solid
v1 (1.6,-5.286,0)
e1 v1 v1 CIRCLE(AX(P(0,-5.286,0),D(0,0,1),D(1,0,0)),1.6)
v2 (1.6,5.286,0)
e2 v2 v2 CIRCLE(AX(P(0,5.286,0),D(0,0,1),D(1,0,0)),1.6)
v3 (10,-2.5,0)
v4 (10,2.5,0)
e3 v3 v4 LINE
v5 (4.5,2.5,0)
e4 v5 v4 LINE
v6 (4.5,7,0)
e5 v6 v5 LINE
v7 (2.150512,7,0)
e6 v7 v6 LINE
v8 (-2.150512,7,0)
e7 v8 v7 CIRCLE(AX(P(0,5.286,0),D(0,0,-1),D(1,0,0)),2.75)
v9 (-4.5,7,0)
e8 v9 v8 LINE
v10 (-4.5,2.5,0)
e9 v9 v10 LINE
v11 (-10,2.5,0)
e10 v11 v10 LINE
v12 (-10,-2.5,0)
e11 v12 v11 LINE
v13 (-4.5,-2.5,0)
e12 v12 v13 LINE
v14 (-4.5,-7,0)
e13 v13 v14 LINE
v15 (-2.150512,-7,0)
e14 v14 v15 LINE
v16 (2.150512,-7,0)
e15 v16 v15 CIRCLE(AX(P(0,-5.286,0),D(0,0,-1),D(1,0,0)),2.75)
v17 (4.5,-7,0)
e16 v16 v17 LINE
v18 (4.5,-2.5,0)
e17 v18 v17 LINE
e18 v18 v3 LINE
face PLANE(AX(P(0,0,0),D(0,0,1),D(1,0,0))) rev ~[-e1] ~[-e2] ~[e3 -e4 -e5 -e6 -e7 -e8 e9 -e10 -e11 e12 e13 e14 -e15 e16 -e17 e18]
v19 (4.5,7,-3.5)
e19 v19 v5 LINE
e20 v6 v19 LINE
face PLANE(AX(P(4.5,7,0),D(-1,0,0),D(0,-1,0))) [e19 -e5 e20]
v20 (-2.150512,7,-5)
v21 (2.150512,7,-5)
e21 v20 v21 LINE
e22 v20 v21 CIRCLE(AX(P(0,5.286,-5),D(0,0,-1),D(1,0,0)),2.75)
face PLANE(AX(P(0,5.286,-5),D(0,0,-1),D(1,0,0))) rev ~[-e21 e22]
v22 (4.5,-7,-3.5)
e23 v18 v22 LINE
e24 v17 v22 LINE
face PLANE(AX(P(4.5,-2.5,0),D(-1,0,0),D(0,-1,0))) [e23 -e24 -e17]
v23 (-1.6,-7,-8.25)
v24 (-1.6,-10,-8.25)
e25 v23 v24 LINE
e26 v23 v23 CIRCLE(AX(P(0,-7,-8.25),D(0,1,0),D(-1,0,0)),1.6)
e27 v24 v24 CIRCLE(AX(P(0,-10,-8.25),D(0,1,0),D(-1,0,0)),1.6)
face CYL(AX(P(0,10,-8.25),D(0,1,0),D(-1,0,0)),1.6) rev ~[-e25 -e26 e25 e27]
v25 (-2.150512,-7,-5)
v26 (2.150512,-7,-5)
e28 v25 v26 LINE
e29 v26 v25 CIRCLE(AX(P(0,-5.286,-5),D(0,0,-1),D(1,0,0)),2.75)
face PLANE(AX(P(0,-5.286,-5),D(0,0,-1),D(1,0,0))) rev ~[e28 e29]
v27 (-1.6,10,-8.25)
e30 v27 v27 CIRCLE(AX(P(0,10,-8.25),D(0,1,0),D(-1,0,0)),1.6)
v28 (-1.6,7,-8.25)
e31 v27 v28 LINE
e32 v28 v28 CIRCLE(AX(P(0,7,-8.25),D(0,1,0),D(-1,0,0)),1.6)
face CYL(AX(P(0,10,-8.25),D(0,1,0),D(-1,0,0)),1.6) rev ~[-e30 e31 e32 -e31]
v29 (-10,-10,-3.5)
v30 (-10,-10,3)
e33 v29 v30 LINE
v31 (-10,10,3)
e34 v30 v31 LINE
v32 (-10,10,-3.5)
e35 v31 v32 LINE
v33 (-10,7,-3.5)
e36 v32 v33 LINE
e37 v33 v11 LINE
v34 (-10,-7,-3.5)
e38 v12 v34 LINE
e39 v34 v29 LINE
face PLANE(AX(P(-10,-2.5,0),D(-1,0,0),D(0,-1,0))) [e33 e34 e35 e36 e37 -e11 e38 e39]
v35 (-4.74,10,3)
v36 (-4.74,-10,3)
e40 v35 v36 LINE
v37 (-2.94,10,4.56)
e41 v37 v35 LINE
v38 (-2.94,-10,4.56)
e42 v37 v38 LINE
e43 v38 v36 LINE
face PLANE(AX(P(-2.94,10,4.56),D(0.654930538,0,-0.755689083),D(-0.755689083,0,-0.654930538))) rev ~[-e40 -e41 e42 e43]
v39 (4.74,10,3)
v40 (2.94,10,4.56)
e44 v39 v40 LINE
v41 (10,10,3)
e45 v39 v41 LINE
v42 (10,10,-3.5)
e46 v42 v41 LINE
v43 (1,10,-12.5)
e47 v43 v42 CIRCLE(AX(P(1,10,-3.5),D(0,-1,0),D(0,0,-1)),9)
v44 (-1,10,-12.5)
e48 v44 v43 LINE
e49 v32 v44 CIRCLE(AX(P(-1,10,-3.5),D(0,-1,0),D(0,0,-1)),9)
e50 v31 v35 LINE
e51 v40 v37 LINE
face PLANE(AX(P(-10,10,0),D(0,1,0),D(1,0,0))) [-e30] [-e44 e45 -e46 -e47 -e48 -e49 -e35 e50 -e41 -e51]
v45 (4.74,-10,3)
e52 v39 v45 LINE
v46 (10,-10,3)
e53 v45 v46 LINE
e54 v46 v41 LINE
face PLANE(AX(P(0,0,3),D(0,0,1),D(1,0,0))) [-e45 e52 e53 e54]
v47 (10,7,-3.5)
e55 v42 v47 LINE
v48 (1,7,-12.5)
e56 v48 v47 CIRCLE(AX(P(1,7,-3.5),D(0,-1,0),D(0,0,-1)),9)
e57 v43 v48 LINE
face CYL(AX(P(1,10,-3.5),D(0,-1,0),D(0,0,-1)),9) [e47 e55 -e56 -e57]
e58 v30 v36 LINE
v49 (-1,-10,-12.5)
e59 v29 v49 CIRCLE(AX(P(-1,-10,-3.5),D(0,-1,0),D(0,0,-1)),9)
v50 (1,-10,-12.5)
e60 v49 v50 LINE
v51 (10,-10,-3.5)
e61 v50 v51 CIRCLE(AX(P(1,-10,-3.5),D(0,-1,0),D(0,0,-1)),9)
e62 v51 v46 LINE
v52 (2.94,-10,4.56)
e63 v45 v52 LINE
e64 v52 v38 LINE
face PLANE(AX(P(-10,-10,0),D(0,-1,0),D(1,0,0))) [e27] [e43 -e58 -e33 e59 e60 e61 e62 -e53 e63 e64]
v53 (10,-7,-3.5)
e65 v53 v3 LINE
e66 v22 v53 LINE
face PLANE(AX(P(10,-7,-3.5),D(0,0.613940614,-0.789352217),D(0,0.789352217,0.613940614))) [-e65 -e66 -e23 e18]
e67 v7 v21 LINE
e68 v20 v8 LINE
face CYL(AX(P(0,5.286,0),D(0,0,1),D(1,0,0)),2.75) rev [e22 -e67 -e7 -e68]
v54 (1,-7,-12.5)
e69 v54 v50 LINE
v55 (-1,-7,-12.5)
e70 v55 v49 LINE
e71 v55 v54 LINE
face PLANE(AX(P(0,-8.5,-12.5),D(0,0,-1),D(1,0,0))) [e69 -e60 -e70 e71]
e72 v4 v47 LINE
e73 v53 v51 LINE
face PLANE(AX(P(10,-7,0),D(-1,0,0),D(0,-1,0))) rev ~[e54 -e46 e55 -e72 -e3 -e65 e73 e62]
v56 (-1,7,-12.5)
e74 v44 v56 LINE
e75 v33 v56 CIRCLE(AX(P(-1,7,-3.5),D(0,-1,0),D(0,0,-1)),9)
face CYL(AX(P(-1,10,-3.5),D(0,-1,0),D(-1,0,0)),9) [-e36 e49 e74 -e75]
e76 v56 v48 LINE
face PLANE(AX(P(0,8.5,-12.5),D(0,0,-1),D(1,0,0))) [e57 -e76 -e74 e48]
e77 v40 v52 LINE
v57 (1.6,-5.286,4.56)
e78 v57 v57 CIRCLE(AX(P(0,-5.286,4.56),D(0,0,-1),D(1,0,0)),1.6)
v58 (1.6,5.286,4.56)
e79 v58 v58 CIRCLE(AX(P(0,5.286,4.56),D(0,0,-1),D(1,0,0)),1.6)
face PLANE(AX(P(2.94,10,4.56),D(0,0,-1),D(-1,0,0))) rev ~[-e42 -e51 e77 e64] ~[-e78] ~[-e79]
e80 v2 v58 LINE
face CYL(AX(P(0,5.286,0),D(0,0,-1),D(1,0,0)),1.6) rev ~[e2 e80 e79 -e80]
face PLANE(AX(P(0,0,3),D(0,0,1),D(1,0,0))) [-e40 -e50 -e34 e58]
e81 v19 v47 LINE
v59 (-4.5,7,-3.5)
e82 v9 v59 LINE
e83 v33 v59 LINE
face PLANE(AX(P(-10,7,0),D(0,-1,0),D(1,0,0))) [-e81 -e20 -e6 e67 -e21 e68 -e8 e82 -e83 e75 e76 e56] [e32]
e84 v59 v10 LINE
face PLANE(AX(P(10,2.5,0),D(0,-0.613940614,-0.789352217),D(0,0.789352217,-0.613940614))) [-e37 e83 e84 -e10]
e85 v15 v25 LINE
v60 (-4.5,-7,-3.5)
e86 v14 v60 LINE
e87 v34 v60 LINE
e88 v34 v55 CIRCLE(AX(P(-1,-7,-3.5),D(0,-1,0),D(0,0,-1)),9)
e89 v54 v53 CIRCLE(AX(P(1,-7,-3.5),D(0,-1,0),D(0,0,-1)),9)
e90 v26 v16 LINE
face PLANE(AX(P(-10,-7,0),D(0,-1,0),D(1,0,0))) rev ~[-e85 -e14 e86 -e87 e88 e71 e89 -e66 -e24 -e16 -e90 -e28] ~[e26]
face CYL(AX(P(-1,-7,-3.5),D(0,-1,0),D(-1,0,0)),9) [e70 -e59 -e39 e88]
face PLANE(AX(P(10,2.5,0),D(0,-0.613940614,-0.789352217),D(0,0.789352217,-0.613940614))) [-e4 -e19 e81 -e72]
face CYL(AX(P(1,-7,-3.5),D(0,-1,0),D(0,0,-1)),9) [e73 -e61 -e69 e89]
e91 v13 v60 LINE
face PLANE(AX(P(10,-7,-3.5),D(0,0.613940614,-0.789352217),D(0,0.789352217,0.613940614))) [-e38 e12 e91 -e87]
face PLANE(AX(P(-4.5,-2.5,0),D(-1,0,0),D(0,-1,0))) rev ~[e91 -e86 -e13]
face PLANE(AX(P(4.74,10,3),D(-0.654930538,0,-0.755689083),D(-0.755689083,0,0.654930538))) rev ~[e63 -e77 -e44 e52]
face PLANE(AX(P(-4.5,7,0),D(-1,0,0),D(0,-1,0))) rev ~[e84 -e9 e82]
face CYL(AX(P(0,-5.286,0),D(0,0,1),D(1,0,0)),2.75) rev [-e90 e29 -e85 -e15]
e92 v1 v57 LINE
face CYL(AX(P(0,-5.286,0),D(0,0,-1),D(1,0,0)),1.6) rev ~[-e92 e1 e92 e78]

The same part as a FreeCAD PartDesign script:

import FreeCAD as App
import Part
import Sketcher

V = App.Vector


def edges_at(feature, points):
    """Names of the edges that pass closest to the given points."""
    edges = feature.Shape.Edges
    near = lambda p: min(range(len(edges)), key=lambda i: edges[i].distToShape(Part.Vertex(*p))[0])
    return sorted({f"Edge{near(p) + 1}" for p in points})

doc = App.newDocument("Part")
body = doc.addObject("PartDesign::Body", "Body")

# Sketch on XY plane
sketch1 = body.newObject("Sketcher::SketchObject", "Sketch")
sketch1.AttachmentSupport = (doc.getObject("XY_Plane"), [""])
sketch1.MapMode = "FlatFace"
sketch1.addGeometry([
    Part.LineSegment(V(-10, 10, 0), V(-10, -10, 0)),  # 0
    Part.LineSegment(V(-10, -10, 0), V(10, -10, 0)),  # 1
    Part.LineSegment(V(10, -10, 0), V(10, 10, 0)),  # 2
    Part.LineSegment(V(10, 10, 0), V(-10, 10, 0)),  # 3
    Part.Circle(V(0, -5.286, 0), V(0, 0, 1), 1.6),  # 4
    Part.Circle(V(0, 5.286, 0), V(0, 0, 1), 1.6),  # 5
], False)
sketch1.addConstraint([
    Sketcher.Constraint("Coincident", 0, 2, 1, 1),
    Sketcher.Constraint("Coincident", 1, 2, 2, 1),
    Sketcher.Constraint("Coincident", 2, 2, 3, 1),
    Sketcher.Constraint("Coincident", 3, 2, 0, 1),
    Sketcher.Constraint("Vertical", 0),
    Sketcher.Constraint("Horizontal", 1),
    Sketcher.Constraint("Vertical", 2),
    Sketcher.Constraint("Horizontal", 3),
    Sketcher.Constraint("Equal", 4, 5),
    Sketcher.Constraint("Symmetric", 4, 3, 5, 3, -1, 1),
    Sketcher.Constraint("Symmetric", 0, 2, 2, 2, -1, 1),
    Sketcher.Constraint("PointOnObject", 4, 3, -2),
    Sketcher.Constraint("Equal", 3, 0),
    Sketcher.Constraint("Diameter", 4, 3.2),
    Sketcher.Constraint("DistanceX", 1, 1, 1, 2, 20.0),
    Sketcher.Constraint("DistanceY", 4, 3, -1, 1, 5.286),
])
pad1 = body.newObject("PartDesign::Pad", "Pad")
pad1.Profile = sketch1
pad1.Length = 3

# Sketch on XZ plane
sketch2 = body.newObject("Sketcher::SketchObject", "Sketch001")
sketch2.AttachmentSupport = (doc.getObject("XZ_Plane"), [""])
sketch2.MapMode = "FlatFace"
sketch2.AttachmentOffset = App.Placement(V(0, 0, -10), App.Rotation())
sketch2.addGeometry([
    Part.LineSegment(V(4.74, 3, 0), V(-4.74, 3, 0)),
    Part.LineSegment(V(-4.74, 3, 0), V(-2.94, 4.56, 0)),
    Part.LineSegment(V(-2.94, 4.56, 0), V(2.94, 4.56, 0)),
    Part.LineSegment(V(2.94, 4.56, 0), V(4.74, 3, 0)),
], False)
sketch2.addConstraint([
    Sketcher.Constraint("Coincident", 0, 2, 1, 1),
    Sketcher.Constraint("Coincident", 1, 2, 2, 1),
    Sketcher.Constraint("Coincident", 2, 2, 3, 1),
    Sketcher.Constraint("Coincident", 3, 2, 0, 1),
    Sketcher.Constraint("Horizontal", 0),
    Sketcher.Constraint("Horizontal", 2),
    Sketcher.Constraint("Equal", 1, 3),
    Sketcher.Constraint("DistanceY", -1, 1, 0, 2, 3.0),
    Sketcher.Constraint("DistanceX", 0, 2, 0, 1, 9.48),
    Sketcher.Constraint("DistanceX", 2, 1, 2, 2, 5.88),
    Sketcher.Constraint("DistanceX", 0, 2, -1, 1, 4.74),
    Sketcher.Constraint("DistanceY", -1, 1, 1, 2, 4.56),
])
pad2 = body.newObject("PartDesign::Pad", "Pad001")
pad2.Profile = sketch2
pad2.Length = 20

# Sketch on XY plane
sketch3 = body.newObject("Sketcher::SketchObject", "Sketch002")
sketch3.AttachmentSupport = (doc.getObject("XY_Plane"), [""])
sketch3.MapMode = "FlatFace"
sketch3.addGeometry([
    Part.Circle(V(0, -5.286, 0), V(0, 0, 1), 1.6),
    Part.Circle(V(0, 5.286, 0), V(0, 0, 1), 1.6),
], False)
sketch3.addConstraint([
    Sketcher.Constraint("Equal", 0, 1),
    Sketcher.Constraint("Symmetric", 0, 3, 1, 3, -1, 1),
    Sketcher.Constraint("PointOnObject", 0, 3, -2),
    Sketcher.Constraint("Diameter", 0, 3.2),
    Sketcher.Constraint("DistanceY", 0, 3, -1, 1, 5.286),
])
pocket1 = body.newObject("PartDesign::Pocket", "Pocket")
pocket1.Profile = sketch3
pocket1.Type = "ThroughAll"
pocket1.Reversed = True

# Sketch on XY plane
sketch4 = body.newObject("Sketcher::SketchObject", "Sketch003")
sketch4.AttachmentSupport = (doc.getObject("XY_Plane"), [""])
sketch4.MapMode = "FlatFace"
sketch4.addGeometry([
    Part.LineSegment(V(-10, -10, 0), V(-10, -7, 0)),  # 0
    Part.LineSegment(V(-10, -7, 0), V(10, -7, 0)),  # 1
    Part.LineSegment(V(10, -7, 0), V(10, -10, 0)),  # 2
    Part.LineSegment(V(10, -10, 0), V(-10, -10, 0)),  # 3
    Part.LineSegment(V(-10, 7, 0), V(-10, 10, 0)),  # 4
    Part.LineSegment(V(-10, 10, 0), V(10, 10, 0)),  # 5
    Part.LineSegment(V(10, 10, 0), V(10, 7, 0)),  # 6
    Part.LineSegment(V(10, 7, 0), V(-10, 7, 0)),  # 7
], False)
sketch4.addConstraint([
    Sketcher.Constraint("Coincident", 0, 2, 1, 1),
    Sketcher.Constraint("Coincident", 1, 2, 2, 1),
    Sketcher.Constraint("Coincident", 2, 2, 3, 1),
    Sketcher.Constraint("Coincident", 3, 2, 0, 1),
    Sketcher.Constraint("Coincident", 4, 2, 5, 1),
    Sketcher.Constraint("Coincident", 5, 2, 6, 1),
    Sketcher.Constraint("Coincident", 6, 2, 7, 1),
    Sketcher.Constraint("Coincident", 7, 2, 4, 1),
    Sketcher.Constraint("Vertical", 0),
    Sketcher.Constraint("Horizontal", 1),
    Sketcher.Constraint("Vertical", 2),
    Sketcher.Constraint("Horizontal", 3),
    Sketcher.Constraint("Vertical", 4),
    Sketcher.Constraint("Horizontal", 5),
    Sketcher.Constraint("Vertical", 6),
    Sketcher.Constraint("Horizontal", 7),
    Sketcher.Constraint("Symmetric", 2, 2, 4, 2, -1, 1),
    Sketcher.Constraint("Symmetric", 0, 2, 6, 2, -1, 1),
    Sketcher.Constraint("Vertical", 3, 2, 4, 2),
    Sketcher.Constraint("DistanceX", 1, 1, 1, 2, 20.0),
    Sketcher.Constraint("DistanceY", 0, 1, 0, 2, 3.0),
    Sketcher.Constraint("DistanceY", 0, 2, -1, 1, 7.0),
])
pad3 = body.newObject("PartDesign::Pad", "Pad002")
pad3.Profile = sketch4
pad3.Length = 12.5
pad3.Reversed = True

# Sketch on XY plane
sketch5 = body.newObject("Sketcher::SketchObject", "Sketch004")
sketch5.AttachmentSupport = (doc.getObject("XY_Plane"), [""])
sketch5.MapMode = "FlatFace"
sketch5.addGeometry([
    Part.Circle(V(0, -5.286, 0), V(0, 0, 1), 2.75),
    Part.Circle(V(0, 5.286, 0), V(0, 0, 1), 2.75),
], False)
sketch5.addConstraint([
    Sketcher.Constraint("Equal", 0, 1),
    Sketcher.Constraint("Symmetric", 0, 3, 1, 3, -1, 1),
    Sketcher.Constraint("PointOnObject", 0, 3, -2),
    Sketcher.Constraint("Diameter", 0, 5.5),
    Sketcher.Constraint("DistanceY", 0, 3, -1, 1, 5.286),
])
pocket2 = body.newObject("PartDesign::Pocket", "Pocket001")
pocket2.Profile = sketch5
pocket2.Length = 5

# Sketch on XZ plane
sketch6 = body.newObject("Sketcher::SketchObject", "Sketch005")
sketch6.AttachmentSupport = (doc.getObject("XZ_Plane"), [""])
sketch6.MapMode = "FlatFace"
sketch6.AttachmentOffset = App.Placement(V(0, 0, -10), App.Rotation())
sketch6.addGeometry(Part.Circle(V(0, -8.25, 0), V(0, 0, 1), 1.6), False)
sketch6.addConstraint([
    Sketcher.Constraint("PointOnObject", 0, 3, -2),
    Sketcher.Constraint("Diameter", 0, 3.2),
    Sketcher.Constraint("DistanceY", 0, 3, -1, 1, 8.25),
])
pocket3 = body.newObject("PartDesign::Pocket", "Pocket002")
pocket3.Profile = sketch6
pocket3.Type = "ThroughAll"
pocket3.Reversed = True
doc.recompute()

fillet = body.newObject("PartDesign::Fillet", "Fillet")
fillet.Base = (pocket3, edges_at(pocket3, [
    (10, 8.5, -12.5),
    (-10, 8.5, -12.5),
    (10, -8.5, -12.5),
    (-10, -8.5, -12.5),
]))
fillet.Radius = 9

# Sketch on XY plane
sketch7 = body.newObject("Sketcher::SketchObject", "Sketch006")
sketch7.AttachmentSupport = (doc.getObject("XY_Plane"), [""])
sketch7.MapMode = "FlatFace"
sketch7.addGeometry([
    Part.LineSegment(V(-10, -7, 0), V(-10, -2.5, 0)),  # 0
    Part.LineSegment(V(-10, -2.5, 0), V(-4.5, -2.5, 0)),  # 1
    Part.LineSegment(V(-4.5, -2.5, 0), V(-4.5, -7, 0)),  # 2
    Part.LineSegment(V(-4.5, -7, 0), V(-10, -7, 0)),  # 3
    Part.LineSegment(V(-10, 2.5, 0), V(-10, 7, 0)),  # 4
    Part.LineSegment(V(-10, 7, 0), V(-4.5, 7, 0)),  # 5
    Part.LineSegment(V(-4.5, 7, 0), V(-4.5, 2.5, 0)),  # 6
    Part.LineSegment(V(-4.5, 2.5, 0), V(-10, 2.5, 0)),  # 7
    Part.LineSegment(V(4.5, -7, 0), V(4.5, -2.5, 0)),  # 8
    Part.LineSegment(V(4.5, -2.5, 0), V(10, -2.5, 0)),  # 9
    Part.LineSegment(V(10, -2.5, 0), V(10, -7, 0)),  # 10
    Part.LineSegment(V(10, -7, 0), V(4.5, -7, 0)),  # 11
    Part.LineSegment(V(4.5, 2.5, 0), V(4.5, 7, 0)),  # 12
    Part.LineSegment(V(4.5, 7, 0), V(10, 7, 0)),  # 13
    Part.LineSegment(V(10, 7, 0), V(10, 2.5, 0)),  # 14
    Part.LineSegment(V(10, 2.5, 0), V(4.5, 2.5, 0)),  # 15
], False)
sketch7.addConstraint([
    Sketcher.Constraint("Coincident", 0, 2, 1, 1),
    Sketcher.Constraint("Coincident", 1, 2, 2, 1),
    Sketcher.Constraint("Coincident", 2, 2, 3, 1),
    Sketcher.Constraint("Coincident", 3, 2, 0, 1),
    Sketcher.Constraint("Coincident", 4, 2, 5, 1),
    Sketcher.Constraint("Coincident", 5, 2, 6, 1),
    Sketcher.Constraint("Coincident", 6, 2, 7, 1),
    Sketcher.Constraint("Coincident", 7, 2, 4, 1),
    Sketcher.Constraint("Coincident", 8, 2, 9, 1),
    Sketcher.Constraint("Coincident", 9, 2, 10, 1),
    Sketcher.Constraint("Coincident", 10, 2, 11, 1),
    Sketcher.Constraint("Coincident", 11, 2, 8, 1),
    Sketcher.Constraint("Coincident", 12, 2, 13, 1),
    Sketcher.Constraint("Coincident", 13, 2, 14, 1),
    Sketcher.Constraint("Coincident", 14, 2, 15, 1),
    Sketcher.Constraint("Coincident", 15, 2, 12, 1),
    Sketcher.Constraint("Vertical", 0),
    Sketcher.Constraint("Horizontal", 1),
    Sketcher.Constraint("Vertical", 2),
    Sketcher.Constraint("Horizontal", 3),
    Sketcher.Constraint("Vertical", 4),
    Sketcher.Constraint("Horizontal", 5),
    Sketcher.Constraint("Vertical", 6),
    Sketcher.Constraint("Horizontal", 7),
    Sketcher.Constraint("Vertical", 8),
    Sketcher.Constraint("Horizontal", 9),
    Sketcher.Constraint("Vertical", 10),
    Sketcher.Constraint("Horizontal", 11),
    Sketcher.Constraint("Vertical", 12),
    Sketcher.Constraint("Horizontal", 13),
    Sketcher.Constraint("Vertical", 14),
    Sketcher.Constraint("Horizontal", 15),
    Sketcher.Constraint("Symmetric", 6, 2, 8, 2, -1, 1),
    Sketcher.Constraint("Symmetric", 4, 2, 10, 2, -1, 1),
    Sketcher.Constraint("Symmetric", 2, 2, 12, 2, -1, 1),
    Sketcher.Constraint("Symmetric", 0, 2, 14, 2, -1, 1),
    Sketcher.Constraint("Symmetric", 1, 2, 8, 2, -2),
    Sketcher.Constraint("Symmetric", 3, 2, 10, 2, -2),
    Sketcher.Constraint("DistanceX", 1, 1, 1, 2, 5.5),
    Sketcher.Constraint("DistanceY", 0, 1, 0, 2, 4.5),
    Sketcher.Constraint("DistanceX", 0, 2, -1, 1, 10.0),
    Sketcher.Constraint("DistanceY", 2, 2, -1, 1, 7.0),
])
pad4 = body.newObject("PartDesign::Pad", "Pad003")
pad4.Profile = sketch7
pad4.Length = 3.5
pad4.Reversed = True

# Sketch on YZ plane
sketch8 = body.newObject("Sketcher::SketchObject", "Sketch007")
sketch8.AttachmentSupport = (doc.getObject("YZ_Plane"), [""])
sketch8.MapMode = "FlatFace"
sketch8.AttachmentOffset = App.Placement(V(0, 0, 10), App.Rotation())
sketch8.addGeometry([
    Part.LineSegment(V(-2.5, -3.5, 0), V(-2.5, 0, 0)),  # 0
    Part.LineSegment(V(-2.5, 0, 0), V(-7, -3.5, 0)),  # 1
    Part.LineSegment(V(-7, -3.5, 0), V(-2.5, -3.5, 0)),  # 2
    Part.LineSegment(V(2.5, -3.5, 0), V(7, -3.5, 0)),  # 3
    Part.LineSegment(V(7, -3.5, 0), V(2.5, 0, 0)),  # 4
    Part.LineSegment(V(2.5, 0, 0), V(2.5, -3.5, 0)),  # 5
], False)
sketch8.addConstraint([
    Sketcher.Constraint("Coincident", 0, 2, 1, 1),
    Sketcher.Constraint("Coincident", 1, 2, 2, 1),
    Sketcher.Constraint("Coincident", 2, 2, 0, 1),
    Sketcher.Constraint("Coincident", 3, 2, 4, 1),
    Sketcher.Constraint("Coincident", 4, 2, 5, 1),
    Sketcher.Constraint("Coincident", 5, 2, 3, 1),
    Sketcher.Constraint("Vertical", 0),
    Sketcher.Constraint("Horizontal", 2),
    Sketcher.Constraint("Horizontal", 3),
    Sketcher.Constraint("Vertical", 5),
    Sketcher.Constraint("Symmetric", 0, 2, 4, 2, -1, 1),
    Sketcher.Constraint("Symmetric", 1, 2, 3, 2, -2),
    Sketcher.Constraint("PointOnObject", 0, 2, -1),
    Sketcher.Constraint("DistanceX", 2, 1, 2, 2, 4.5),
    Sketcher.Constraint("DistanceY", 0, 1, 0, 2, 3.5),
    Sketcher.Constraint("DistanceX", 1, 2, -1, 1, 7.0),
])
pocket4 = body.newObject("PartDesign::Pocket", "Pocket003")
pocket4.Profile = sketch8
pocket4.Type = "ThroughAll"

doc.recompute()
